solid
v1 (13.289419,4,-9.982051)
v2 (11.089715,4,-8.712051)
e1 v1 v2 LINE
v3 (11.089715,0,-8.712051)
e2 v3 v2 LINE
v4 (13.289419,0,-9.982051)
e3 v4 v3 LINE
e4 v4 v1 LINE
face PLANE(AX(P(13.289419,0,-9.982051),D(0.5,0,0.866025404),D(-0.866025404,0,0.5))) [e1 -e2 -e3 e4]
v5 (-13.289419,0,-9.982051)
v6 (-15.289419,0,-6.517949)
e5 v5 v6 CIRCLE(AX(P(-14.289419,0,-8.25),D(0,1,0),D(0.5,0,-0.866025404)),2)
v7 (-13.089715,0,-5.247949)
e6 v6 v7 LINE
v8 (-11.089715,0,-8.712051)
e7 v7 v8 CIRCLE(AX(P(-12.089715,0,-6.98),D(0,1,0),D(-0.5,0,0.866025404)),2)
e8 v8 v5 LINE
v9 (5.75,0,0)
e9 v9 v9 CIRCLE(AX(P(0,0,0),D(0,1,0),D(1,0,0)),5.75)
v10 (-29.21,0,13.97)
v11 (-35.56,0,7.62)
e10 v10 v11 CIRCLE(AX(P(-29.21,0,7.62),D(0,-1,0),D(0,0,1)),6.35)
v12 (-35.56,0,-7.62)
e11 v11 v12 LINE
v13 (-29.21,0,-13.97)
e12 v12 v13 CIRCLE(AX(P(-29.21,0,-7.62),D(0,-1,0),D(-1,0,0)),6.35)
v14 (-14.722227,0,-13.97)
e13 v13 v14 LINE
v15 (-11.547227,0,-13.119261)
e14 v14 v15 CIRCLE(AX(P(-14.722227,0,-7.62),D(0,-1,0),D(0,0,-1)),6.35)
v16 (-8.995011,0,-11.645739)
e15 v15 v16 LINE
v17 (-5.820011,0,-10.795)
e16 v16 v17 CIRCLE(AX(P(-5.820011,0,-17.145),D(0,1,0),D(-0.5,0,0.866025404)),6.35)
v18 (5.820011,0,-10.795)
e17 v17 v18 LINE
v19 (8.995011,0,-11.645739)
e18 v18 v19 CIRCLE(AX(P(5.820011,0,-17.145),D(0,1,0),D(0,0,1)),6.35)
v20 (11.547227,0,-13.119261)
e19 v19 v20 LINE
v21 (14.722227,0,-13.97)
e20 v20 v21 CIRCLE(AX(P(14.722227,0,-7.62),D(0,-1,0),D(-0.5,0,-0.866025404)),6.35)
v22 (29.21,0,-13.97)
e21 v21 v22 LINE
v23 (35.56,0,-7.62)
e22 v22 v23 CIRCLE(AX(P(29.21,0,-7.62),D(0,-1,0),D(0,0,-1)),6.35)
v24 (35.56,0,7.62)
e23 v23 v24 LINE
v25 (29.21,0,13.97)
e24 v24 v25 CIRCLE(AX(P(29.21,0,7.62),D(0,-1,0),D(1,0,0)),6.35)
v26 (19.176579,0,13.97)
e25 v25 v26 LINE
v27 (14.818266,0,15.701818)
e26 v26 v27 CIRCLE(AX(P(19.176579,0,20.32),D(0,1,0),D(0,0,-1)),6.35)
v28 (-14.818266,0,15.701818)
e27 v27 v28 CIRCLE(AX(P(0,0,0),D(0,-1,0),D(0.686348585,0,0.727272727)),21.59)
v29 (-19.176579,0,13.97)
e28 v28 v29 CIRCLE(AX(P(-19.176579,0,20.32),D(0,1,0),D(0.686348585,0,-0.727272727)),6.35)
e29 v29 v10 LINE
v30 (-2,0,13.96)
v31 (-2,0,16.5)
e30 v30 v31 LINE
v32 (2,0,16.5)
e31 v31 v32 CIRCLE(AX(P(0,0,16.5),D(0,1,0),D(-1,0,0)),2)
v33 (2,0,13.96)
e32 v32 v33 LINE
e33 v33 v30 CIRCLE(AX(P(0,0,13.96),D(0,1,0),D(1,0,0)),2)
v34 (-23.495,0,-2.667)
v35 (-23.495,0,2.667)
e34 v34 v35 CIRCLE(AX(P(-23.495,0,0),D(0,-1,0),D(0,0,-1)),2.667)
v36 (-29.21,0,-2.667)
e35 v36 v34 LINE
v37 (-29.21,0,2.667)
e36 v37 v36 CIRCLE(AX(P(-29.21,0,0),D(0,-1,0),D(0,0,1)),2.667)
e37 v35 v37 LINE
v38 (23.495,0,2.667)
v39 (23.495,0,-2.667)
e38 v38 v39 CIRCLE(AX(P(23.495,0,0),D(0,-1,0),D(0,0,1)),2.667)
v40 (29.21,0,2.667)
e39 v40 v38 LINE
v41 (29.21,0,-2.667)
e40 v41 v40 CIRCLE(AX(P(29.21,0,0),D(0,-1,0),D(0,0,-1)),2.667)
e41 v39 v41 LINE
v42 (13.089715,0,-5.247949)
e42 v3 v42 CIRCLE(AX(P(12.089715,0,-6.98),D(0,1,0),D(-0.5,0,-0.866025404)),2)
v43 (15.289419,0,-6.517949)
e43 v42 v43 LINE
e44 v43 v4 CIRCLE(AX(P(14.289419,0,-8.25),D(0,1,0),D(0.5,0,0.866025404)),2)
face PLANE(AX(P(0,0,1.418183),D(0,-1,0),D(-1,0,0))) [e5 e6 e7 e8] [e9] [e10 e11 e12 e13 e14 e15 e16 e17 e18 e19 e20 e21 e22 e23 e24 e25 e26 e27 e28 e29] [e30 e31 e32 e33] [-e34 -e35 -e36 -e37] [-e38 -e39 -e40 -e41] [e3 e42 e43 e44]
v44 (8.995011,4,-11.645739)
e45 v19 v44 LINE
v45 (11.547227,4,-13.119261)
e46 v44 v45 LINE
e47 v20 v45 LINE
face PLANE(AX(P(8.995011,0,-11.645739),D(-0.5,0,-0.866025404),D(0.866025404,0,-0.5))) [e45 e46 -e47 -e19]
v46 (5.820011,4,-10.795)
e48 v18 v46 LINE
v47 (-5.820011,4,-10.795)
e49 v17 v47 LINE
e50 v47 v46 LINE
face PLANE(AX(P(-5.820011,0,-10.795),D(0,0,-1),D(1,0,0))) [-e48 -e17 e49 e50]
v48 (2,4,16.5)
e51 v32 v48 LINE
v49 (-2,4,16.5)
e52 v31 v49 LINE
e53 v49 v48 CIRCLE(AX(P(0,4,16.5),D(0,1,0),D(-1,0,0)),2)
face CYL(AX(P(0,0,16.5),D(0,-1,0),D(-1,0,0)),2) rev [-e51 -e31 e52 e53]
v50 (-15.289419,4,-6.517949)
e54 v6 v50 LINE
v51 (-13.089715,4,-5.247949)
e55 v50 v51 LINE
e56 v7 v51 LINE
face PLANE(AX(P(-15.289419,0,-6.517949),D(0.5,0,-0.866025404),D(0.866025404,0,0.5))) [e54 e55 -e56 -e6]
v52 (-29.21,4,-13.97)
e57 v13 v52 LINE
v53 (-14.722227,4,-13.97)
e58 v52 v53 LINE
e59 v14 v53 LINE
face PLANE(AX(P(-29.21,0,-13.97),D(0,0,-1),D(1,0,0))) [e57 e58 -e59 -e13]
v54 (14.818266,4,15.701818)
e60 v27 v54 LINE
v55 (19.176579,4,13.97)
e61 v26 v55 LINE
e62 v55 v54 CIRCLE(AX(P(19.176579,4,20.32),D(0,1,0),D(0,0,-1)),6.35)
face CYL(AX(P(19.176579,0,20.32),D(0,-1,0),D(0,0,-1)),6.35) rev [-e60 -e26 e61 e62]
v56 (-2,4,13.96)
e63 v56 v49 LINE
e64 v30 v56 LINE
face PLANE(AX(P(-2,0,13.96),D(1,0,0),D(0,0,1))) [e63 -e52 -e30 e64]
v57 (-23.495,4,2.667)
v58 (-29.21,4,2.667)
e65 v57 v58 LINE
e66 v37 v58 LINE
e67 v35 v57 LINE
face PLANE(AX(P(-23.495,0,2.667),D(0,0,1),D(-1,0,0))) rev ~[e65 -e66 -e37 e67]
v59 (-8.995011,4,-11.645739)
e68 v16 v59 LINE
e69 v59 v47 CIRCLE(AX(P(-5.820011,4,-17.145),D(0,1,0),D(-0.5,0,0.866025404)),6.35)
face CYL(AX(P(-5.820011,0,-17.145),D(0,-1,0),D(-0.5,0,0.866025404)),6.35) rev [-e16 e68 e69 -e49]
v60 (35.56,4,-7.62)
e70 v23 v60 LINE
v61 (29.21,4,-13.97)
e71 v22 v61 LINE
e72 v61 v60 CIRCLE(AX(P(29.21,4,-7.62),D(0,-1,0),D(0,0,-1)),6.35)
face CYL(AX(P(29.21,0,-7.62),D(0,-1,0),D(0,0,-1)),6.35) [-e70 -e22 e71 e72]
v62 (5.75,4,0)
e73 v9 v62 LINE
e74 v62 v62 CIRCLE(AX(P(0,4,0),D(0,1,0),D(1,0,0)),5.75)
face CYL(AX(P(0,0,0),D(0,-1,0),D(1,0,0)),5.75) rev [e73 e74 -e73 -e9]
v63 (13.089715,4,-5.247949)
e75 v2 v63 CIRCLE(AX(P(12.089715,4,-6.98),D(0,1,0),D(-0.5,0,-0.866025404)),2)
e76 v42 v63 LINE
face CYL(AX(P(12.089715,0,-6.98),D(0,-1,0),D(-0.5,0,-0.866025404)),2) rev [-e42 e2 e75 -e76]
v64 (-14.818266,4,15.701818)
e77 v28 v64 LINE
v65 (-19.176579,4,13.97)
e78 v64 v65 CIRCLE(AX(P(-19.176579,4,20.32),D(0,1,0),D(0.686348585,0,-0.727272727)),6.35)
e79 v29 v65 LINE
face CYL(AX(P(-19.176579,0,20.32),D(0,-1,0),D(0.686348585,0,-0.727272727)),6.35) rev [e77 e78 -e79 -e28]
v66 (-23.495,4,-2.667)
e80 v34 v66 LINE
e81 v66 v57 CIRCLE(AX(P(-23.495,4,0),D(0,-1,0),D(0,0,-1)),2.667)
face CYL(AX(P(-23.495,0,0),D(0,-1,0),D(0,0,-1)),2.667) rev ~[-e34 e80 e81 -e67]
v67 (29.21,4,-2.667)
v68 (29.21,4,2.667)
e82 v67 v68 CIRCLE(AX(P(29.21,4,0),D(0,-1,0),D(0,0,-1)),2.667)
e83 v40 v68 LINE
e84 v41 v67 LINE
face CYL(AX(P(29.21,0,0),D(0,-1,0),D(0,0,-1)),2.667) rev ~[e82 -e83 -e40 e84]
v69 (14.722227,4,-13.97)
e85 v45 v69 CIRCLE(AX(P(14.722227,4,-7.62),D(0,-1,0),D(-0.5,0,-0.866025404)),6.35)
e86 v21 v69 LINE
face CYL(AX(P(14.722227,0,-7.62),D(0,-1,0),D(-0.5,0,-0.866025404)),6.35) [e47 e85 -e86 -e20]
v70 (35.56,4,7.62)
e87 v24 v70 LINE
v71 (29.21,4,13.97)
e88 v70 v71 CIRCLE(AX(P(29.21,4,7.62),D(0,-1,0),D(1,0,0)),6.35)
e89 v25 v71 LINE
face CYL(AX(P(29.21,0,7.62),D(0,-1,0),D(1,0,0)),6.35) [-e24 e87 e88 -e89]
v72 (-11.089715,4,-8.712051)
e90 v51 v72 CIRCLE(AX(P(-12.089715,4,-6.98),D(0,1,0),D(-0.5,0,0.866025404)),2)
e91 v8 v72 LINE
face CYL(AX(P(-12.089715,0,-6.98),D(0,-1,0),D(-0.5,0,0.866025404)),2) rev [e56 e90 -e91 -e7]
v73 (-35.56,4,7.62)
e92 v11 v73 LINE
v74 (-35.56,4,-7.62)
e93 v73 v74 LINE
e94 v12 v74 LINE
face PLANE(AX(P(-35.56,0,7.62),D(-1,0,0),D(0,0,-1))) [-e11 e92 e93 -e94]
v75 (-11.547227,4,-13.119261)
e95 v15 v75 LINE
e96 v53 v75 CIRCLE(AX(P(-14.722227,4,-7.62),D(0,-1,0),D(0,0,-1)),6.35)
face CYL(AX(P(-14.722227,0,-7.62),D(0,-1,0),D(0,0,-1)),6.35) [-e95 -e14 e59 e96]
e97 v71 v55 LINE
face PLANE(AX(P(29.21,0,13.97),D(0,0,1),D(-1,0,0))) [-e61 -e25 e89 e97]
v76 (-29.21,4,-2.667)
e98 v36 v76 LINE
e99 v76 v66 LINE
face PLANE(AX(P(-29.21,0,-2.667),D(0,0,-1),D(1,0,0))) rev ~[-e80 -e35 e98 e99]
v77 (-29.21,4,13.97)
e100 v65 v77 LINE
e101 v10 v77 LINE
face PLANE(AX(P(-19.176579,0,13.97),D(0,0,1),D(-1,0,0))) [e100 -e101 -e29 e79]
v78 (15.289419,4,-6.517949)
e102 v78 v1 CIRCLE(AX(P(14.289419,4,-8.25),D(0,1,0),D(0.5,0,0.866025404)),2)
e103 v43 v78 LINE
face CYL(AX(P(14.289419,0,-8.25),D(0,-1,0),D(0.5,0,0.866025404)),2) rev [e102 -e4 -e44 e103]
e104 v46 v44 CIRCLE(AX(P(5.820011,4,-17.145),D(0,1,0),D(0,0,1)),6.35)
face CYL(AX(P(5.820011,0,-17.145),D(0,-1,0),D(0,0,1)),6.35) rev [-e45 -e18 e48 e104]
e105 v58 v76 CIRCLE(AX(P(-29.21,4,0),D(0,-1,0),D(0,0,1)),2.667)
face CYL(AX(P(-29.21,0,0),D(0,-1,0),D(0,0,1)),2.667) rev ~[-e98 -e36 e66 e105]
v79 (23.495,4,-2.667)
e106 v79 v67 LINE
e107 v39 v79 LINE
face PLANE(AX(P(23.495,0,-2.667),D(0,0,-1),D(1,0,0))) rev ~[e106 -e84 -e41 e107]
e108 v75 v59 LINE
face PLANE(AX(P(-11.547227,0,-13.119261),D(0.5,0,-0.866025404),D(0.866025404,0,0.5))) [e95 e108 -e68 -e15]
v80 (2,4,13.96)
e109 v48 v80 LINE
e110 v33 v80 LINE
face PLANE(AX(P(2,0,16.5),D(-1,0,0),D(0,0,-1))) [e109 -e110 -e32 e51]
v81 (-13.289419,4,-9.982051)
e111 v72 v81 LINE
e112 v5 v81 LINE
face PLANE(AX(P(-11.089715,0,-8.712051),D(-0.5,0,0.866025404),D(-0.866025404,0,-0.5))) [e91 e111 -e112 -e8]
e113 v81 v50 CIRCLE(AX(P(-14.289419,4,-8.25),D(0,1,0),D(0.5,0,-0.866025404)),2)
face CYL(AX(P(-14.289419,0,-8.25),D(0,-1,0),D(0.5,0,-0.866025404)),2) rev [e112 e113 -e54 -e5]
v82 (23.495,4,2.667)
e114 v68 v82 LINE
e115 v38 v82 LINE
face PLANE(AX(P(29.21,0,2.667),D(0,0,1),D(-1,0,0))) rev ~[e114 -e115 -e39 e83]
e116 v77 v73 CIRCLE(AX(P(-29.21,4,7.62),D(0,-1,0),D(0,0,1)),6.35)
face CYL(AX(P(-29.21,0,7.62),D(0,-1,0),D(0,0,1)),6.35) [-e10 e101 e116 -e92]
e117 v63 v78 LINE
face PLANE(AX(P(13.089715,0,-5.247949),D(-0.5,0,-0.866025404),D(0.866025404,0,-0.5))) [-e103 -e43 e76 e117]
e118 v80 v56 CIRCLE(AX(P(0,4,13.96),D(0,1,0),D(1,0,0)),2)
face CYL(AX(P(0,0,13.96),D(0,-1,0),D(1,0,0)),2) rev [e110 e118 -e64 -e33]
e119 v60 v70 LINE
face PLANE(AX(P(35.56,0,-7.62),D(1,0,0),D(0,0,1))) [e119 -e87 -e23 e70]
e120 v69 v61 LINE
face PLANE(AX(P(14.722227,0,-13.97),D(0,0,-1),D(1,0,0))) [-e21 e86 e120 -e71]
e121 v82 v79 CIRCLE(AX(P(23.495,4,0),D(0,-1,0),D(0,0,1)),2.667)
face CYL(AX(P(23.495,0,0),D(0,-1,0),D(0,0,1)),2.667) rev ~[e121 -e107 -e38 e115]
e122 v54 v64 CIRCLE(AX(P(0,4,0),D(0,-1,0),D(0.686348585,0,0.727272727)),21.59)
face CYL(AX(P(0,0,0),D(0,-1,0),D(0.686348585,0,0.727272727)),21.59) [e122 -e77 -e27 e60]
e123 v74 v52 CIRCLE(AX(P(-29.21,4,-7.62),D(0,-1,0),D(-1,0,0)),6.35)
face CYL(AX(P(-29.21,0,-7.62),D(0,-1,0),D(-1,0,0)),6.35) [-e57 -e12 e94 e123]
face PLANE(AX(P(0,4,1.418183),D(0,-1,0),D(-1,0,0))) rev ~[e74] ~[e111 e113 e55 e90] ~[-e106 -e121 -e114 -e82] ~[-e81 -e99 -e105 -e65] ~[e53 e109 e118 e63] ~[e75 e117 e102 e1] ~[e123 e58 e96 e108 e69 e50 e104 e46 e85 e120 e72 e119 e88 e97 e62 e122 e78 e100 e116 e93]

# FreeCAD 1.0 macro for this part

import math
import FreeCAD as App
import Part
import Sketcher

V = App.Vector
Q = App.Units.Quantity

doc = App.newDocument("Part")
body = doc.addObject("PartDesign::Body", "Body")

# Sketch on XZ plane
sketch1 = body.newObject("Sketcher::SketchObject", "Sketch")
sketch1.AttachmentSupport = (doc.getObject("XZ_Plane"), [""])
sketch1.MapMode = "FlatFace"
sketch1.addGeometry([
    Part.LineSegment(V(29.21, -13.97, 0), V(14.722227, -13.97, 0)),  # 0
    Part.ArcOfCircle(Part.Circle(V(14.722227, -7.62, 0), V(0, 0, 1), 6.35), math.radians(-120), math.radians(-90)),  # 1
    Part.LineSegment(V(11.547227, -13.119261, 0), V(8.995011, -11.645739, 0)),  # 2
    Part.ArcOfCircle(Part.Circle(V(5.820011, -17.145, 0), V(0, 0, 1), 6.35), math.radians(60), math.radians(90)),  # 3
    Part.LineSegment(V(5.820011, -10.795, 0), V(-5.820011, -10.795, 0)),  # 4
    Part.ArcOfCircle(Part.Circle(V(-5.820011, -17.145, 0), V(0, 0, 1), 6.35), math.radians(90), math.radians(120)),  # 5
    Part.LineSegment(V(-8.995011, -11.645739, 0), V(-11.547227, -13.119261, 0)),  # 6
    Part.ArcOfCircle(Part.Circle(V(-14.722227, -7.62, 0), V(0, 0, 1), 6.35), math.radians(-90), math.radians(-60)),  # 7
    Part.LineSegment(V(-14.722227, -13.97, 0), V(-29.21, -13.97, 0)),  # 8
    Part.ArcOfCircle(Part.Circle(V(-29.21, -7.62, 0), V(0, 0, 1), 6.35), math.radians(180), math.radians(270)),  # 9
    Part.LineSegment(V(-35.56, -7.62, 0), V(-35.56, 7.62, 0)),  # 10
    Part.ArcOfCircle(Part.Circle(V(-29.21, 7.62, 0), V(0, 0, 1), 6.35), math.radians(90), math.radians(180)),  # 11
    Part.LineSegment(V(-29.21, 13.97, 0), V(-19.176579, 13.97, 0)),  # 12
    Part.ArcOfCircle(Part.Circle(V(-19.176579, 20.32, 0), V(0, 0, 1), 6.35), math.radians(-90), math.radians(-46.658242)),  # 13
    Part.ArcOfCircle(Part.Circle(V(0, 0, 0), V(0, 0, 1), 21.59), math.radians(46.658242), math.radians(133.341758)),  # 14
    Part.ArcOfCircle(Part.Circle(V(19.176579, 20.32, 0), V(0, 0, 1), 6.35), math.radians(-133.341758), math.radians(-90)),  # 15
    Part.LineSegment(V(19.176579, 13.97, 0), V(29.21, 13.97, 0)),  # 16
    Part.ArcOfCircle(Part.Circle(V(29.21, 7.62, 0), V(0, 0, 1), 6.35), math.radians(0), math.radians(90)),  # 17
    Part.LineSegment(V(35.56, 7.62, 0), V(35.56, -7.62, 0)),  # 18
    Part.ArcOfCircle(Part.Circle(V(29.21, -7.62, 0), V(0, 0, 1), 6.35), math.radians(-90), math.radians(0)),  # 19
    Part.ArcOfCircle(Part.Circle(V(0, 16.5, 0), V(0, 0, 1), 2), math.radians(0), math.radians(180)),  # 20
    Part.LineSegment(V(-2, 16.5, 0), V(-2, 13.96, 0)),  # 21
    Part.ArcOfCircle(Part.Circle(V(0, 13.96, 0), V(0, 0, 1), 2), math.radians(180), math.radians(360)),  # 22
    Part.LineSegment(V(2, 13.96, 0), V(2, 16.5, 0)),  # 23
    Part.LineSegment(V(23.495, -2.667, 0), V(29.21, -2.667, 0)),  # 24
    Part.ArcOfCircle(Part.Circle(V(29.21, 0, 0), V(0, 0, 1), 2.667), math.radians(-90), math.radians(90)),  # 25
    Part.LineSegment(V(29.21, 2.667, 0), V(23.495, 2.667, 0)),  # 26
    Part.ArcOfCircle(Part.Circle(V(23.495, 0, 0), V(0, 0, 1), 2.667), math.radians(90), math.radians(270)),  # 27
    Part.ArcOfCircle(Part.Circle(V(14.289419, -8.25, 0), V(0, 0, 1), 2), math.radians(-120), math.radians(60)),  # 28
    Part.LineSegment(V(15.289419, -6.517949, 0), V(13.089715, -5.247949, 0)),  # 29
    Part.ArcOfCircle(Part.Circle(V(12.089715, -6.98, 0), V(0, 0, 1), 2), math.radians(60), math.radians(240)),  # 30
    Part.LineSegment(V(11.089715, -8.712051, 0), V(13.289419, -9.982051, 0)),  # 31
    Part.Circle(V(0, 0, 0), V(0, 0, 1), 5.75),  # 32
    Part.LineSegment(V(-23.495, 2.667, 0), V(-29.21, 2.667, 0)),  # 33
    Part.ArcOfCircle(Part.Circle(V(-29.21, 0, 0), V(0, 0, 1), 2.667), math.radians(90), math.radians(270)),  # 34
    Part.LineSegment(V(-29.21, -2.667, 0), V(-23.495, -2.667, 0)),  # 35
    Part.ArcOfCircle(Part.Circle(V(-23.495, 0, 0), V(0, 0, 1), 2.667), math.radians(-90), math.radians(90)),  # 36
    Part.ArcOfCircle(Part.Circle(V(-14.289419, -8.25, 0), V(0, 0, 1), 2), math.radians(120), math.radians(300)),  # 37
    Part.LineSegment(V(-13.289419, -9.982051, 0), V(-11.089715, -8.712051, 0)),  # 38
    Part.ArcOfCircle(Part.Circle(V(-12.089715, -6.98, 0), V(0, 0, 1), 2), math.radians(-60), math.radians(120)),  # 39
    Part.LineSegment(V(-13.089715, -5.247949, 0), V(-15.289419, -6.517949, 0)),  # 40
], False)
sketch1.addConstraint([
    Sketcher.Constraint("Tangent", 0, 2, 1, 2),
    Sketcher.Constraint("Tangent", 1, 1, 2, 1),
    Sketcher.Constraint("Tangent", 2, 2, 3, 1),
    Sketcher.Constraint("Tangent", 3, 2, 4, 1),
    Sketcher.Constraint("Tangent", 4, 2, 5, 1),
    Sketcher.Constraint("Tangent", 5, 2, 6, 1),
    Sketcher.Constraint("Tangent", 6, 2, 7, 2),
    Sketcher.Constraint("Tangent", 7, 1, 8, 1),
    Sketcher.Constraint("Tangent", 8, 2, 9, 2),
    Sketcher.Constraint("Tangent", 9, 1, 10, 1),
    Sketcher.Constraint("Tangent", 10, 2, 11, 2),
    Sketcher.Constraint("Tangent", 11, 1, 12, 1),
    Sketcher.Constraint("Tangent", 12, 2, 13, 1),
    Sketcher.Constraint("Tangent", 13, 2, 14, 2),
    Sketcher.Constraint("Tangent", 14, 1, 15, 1),
    Sketcher.Constraint("Tangent", 15, 2, 16, 1),
    Sketcher.Constraint("Tangent", 16, 2, 17, 2),
    Sketcher.Constraint("Tangent", 17, 1, 18, 1),
    Sketcher.Constraint("Tangent", 18, 2, 19, 2),
    Sketcher.Constraint("Tangent", 19, 1, 0, 1),
    Sketcher.Constraint("Tangent", 20, 2, 21, 1),
    Sketcher.Constraint("Tangent", 21, 2, 22, 1),
    Sketcher.Constraint("Tangent", 22, 2, 23, 1),
    Sketcher.Constraint("Tangent", 23, 2, 20, 1),
    Sketcher.Constraint("Tangent", 24, 2, 25, 1),
    Sketcher.Constraint("Tangent", 25, 2, 26, 1),
    Sketcher.Constraint("Tangent", 26, 2, 27, 1),
    Sketcher.Constraint("Tangent", 27, 2, 24, 1),
    Sketcher.Constraint("Tangent", 28, 2, 29, 1),
    Sketcher.Constraint("Tangent", 29, 2, 30, 1),
    Sketcher.Constraint("Tangent", 30, 2, 31, 1),
    Sketcher.Constraint("Tangent", 31, 2, 28, 1),
    Sketcher.Constraint("Tangent", 33, 2, 34, 1),
    Sketcher.Constraint("Tangent", 34, 2, 35, 1),
    Sketcher.Constraint("Tangent", 35, 2, 36, 1),
    Sketcher.Constraint("Tangent", 36, 2, 33, 1),
    Sketcher.Constraint("Tangent", 37, 2, 38, 1),
    Sketcher.Constraint("Tangent", 38, 2, 39, 1),
    Sketcher.Constraint("Tangent", 39, 2, 40, 1),
    Sketcher.Constraint("Tangent", 40, 2, 37, 1),
    Sketcher.Constraint("Horizontal", 0),
    Sketcher.Constraint("Horizontal", 4),
    Sketcher.Constraint("Horizontal", 8),
    Sketcher.Constraint("Vertical", 10),
    Sketcher.Constraint("Horizontal", 12),
    Sketcher.Constraint("Horizontal", 16),
    Sketcher.Constraint("Vertical", 18),
    Sketcher.Constraint("Vertical", 21),
    Sketcher.Constraint("Vertical", 23),
    Sketcher.Constraint("Horizontal", 24),
    Sketcher.Constraint("Horizontal", 26),
    Sketcher.Constraint("Horizontal", 33),
    Sketcher.Constraint("Horizontal", 35),
    Sketcher.Constraint("Coincident", 14, 3, -1, 1),
    Sketcher.Constraint("Coincident", 32, 3, -1, 1),
    Sketcher.Constraint("Equal", 1, 3),
    Sketcher.Constraint("Equal", 3, 5),
    Sketcher.Constraint("Equal", 5, 7),
    Sketcher.Constraint("Equal", 7, 9),
    Sketcher.Constraint("Equal", 9, 11),
    Sketcher.Constraint("Equal", 11, 13),
    Sketcher.Constraint("Equal", 13, 15),
    Sketcher.Constraint("Equal", 15, 17),
    Sketcher.Constraint("Equal", 17, 19),
    Sketcher.Constraint("Equal", 22, 28),
    Sketcher.Constraint("Equal", 28, 30),
    Sketcher.Constraint("Equal", 27, 34),
    Sketcher.Constraint("Equal", 30, 37),
    Sketcher.Constraint("Equal", 37, 39),
    Sketcher.Constraint("Symmetric", 9, 3, 17, 3, -1, 1),
    Sketcher.Constraint("Symmetric", 25, 3, 34, 3, -1, 1),
    Sketcher.Constraint("Symmetric", 1, 3, 7, 3, -2),
    Sketcher.Constraint("Symmetric", 27, 3, 36, 3, -2),
    Sketcher.Constraint("Symmetric", 28, 3, 37, 3, -2),
    Sketcher.Constraint("Symmetric", 30, 3, 39, 3, -2),
    Sketcher.Constraint("PointOnObject", 20, 3, -2),
    Sketcher.Constraint("Parallel", 2, 29),
    Sketcher.Constraint("Parallel", 6, 38),
    Sketcher.Constraint("Horizontal", 13, 3, 15, 3),
    Sketcher.Constraint("Vertical", 19, 3, 25, 3),
    Sketcher.Constraint("Radius", 1, Q("0.25 in")),
    Sketcher.Constraint("Radius", 14, Q("0.85 in")),
    Sketcher.Constraint("DistanceY", 10, 1, 10, 2, Q("0.6 in")),
    Sketcher.Constraint("DistanceY", 21, 2, 21, 1, Q("0.1 in")),
    Sketcher.Constraint("Angle", 2, Q("150 deg")),
    Sketcher.Constraint("Radius", 25, Q("0.105 in")),
    Sketcher.Constraint("Distance", 29, Q("0.1 in")),
    Sketcher.Constraint("DistanceX", 9, 1, -1, 1, Q("1.4 in")),
    Sketcher.Constraint("Diameter", 32, 11.5),
    Sketcher.Constraint("DistanceX", 24, 1, 24, 2, Q("0.225 in")),
    Sketcher.Constraint("Radius", 20, 2.0),
    Sketcher.Constraint("DistanceY", 3, 3, -1, 1, Q("0.675 in")),
    Sketcher.Constraint("DistanceY", -1, 1, 20, 3, 16.5),
    Sketcher.Constraint("DistanceY", 28, 3, -1, 1, 8.25),
    Sketcher.Constraint("DistanceX", 0, 2, 0, 1, 14.487773),
    Sketcher.Constraint("DistanceX", -1, 1, 28, 3, 14.289419),
])
pad1 = body.newObject("PartDesign::Pad", "Pad")
pad1.Profile = sketch1
pad1.Length = 4
pad1.Reversed = True

doc.recompute()
